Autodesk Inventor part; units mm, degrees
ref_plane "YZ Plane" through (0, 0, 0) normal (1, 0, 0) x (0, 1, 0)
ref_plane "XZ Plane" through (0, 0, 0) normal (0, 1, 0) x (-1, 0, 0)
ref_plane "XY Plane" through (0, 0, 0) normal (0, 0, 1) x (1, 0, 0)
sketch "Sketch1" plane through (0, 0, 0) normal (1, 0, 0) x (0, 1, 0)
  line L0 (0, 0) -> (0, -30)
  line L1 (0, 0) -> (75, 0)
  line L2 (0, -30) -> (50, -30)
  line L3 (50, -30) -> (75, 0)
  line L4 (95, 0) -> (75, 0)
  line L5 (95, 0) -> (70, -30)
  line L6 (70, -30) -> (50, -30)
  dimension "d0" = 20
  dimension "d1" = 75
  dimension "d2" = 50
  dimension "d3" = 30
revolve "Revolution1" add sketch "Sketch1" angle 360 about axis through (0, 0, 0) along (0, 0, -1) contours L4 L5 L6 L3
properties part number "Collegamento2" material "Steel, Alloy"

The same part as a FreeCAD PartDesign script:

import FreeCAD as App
import Part
import Sketcher

V = App.Vector

doc = App.newDocument("Part")
params = doc.addObject("Spreadsheet::Sheet", "Params")
for row, (alias, value) in enumerate([
    ("sketch1_width", "20 mm"),
    ("revolution_angle", "360 deg"),
], start=1):
    params.set(f"A{row}", alias)
    params.set(f"B{row}", "=" + value)
    params.setAlias(f"B{row}", alias)

body = doc.addObject("PartDesign::Body", "Body")

# Sketch on YZ plane
sketch1 = body.newObject("Sketcher::SketchObject", "Sketch")
sketch1.AttachmentSupport = (doc.getObject("YZ_Plane"), [""])
sketch1.MapMode = "FlatFace"
sketch1.addGeometry([
    Part.LineSegment(V(95, 0, 0), V(75, 0, 0)),
    Part.LineSegment(V(75, 0, 0), V(50, -30, 0)),
    Part.LineSegment(V(50, -30, 0), V(70, -30, 0)),
    Part.LineSegment(V(70, -30, 0), V(95, 0, 0)),
], False)
sketch1.addConstraint([
    Sketcher.Constraint("Coincident", 0, 2, 1, 1),
    Sketcher.Constraint("Coincident", 1, 2, 2, 1),
    Sketcher.Constraint("Coincident", 2, 2, 3, 1),
    Sketcher.Constraint("Coincident", 3, 2, 0, 1),
    Sketcher.Constraint("Horizontal", 0),
    Sketcher.Constraint("Horizontal", 2),
    Sketcher.Constraint("PointOnObject", 0, 2, -1),
    Sketcher.Constraint("Parallel", 1, 3),
    Sketcher.Constraint("DistanceX", 0, 2, 0, 1, 20.0),
    Sketcher.Constraint("DistanceX", -1, 1, 0, 2, 75.0),
    Sketcher.Constraint("DistanceX", -1, 1, 1, 2, 50.0),
    Sketcher.Constraint("DistanceY", 1, 2, -1, 1, 30.0),
])
sketch1.setExpression("Constraints[8]", "Params.sketch1_width")
revolution = body.newObject("PartDesign::Revolution", "Revolution")
revolution.Profile = sketch1
revolution.ReferenceAxis = (sketch1, ["V_Axis"])
revolution.setExpression("Angle", "Params.revolution_angle")

doc.recompute()
